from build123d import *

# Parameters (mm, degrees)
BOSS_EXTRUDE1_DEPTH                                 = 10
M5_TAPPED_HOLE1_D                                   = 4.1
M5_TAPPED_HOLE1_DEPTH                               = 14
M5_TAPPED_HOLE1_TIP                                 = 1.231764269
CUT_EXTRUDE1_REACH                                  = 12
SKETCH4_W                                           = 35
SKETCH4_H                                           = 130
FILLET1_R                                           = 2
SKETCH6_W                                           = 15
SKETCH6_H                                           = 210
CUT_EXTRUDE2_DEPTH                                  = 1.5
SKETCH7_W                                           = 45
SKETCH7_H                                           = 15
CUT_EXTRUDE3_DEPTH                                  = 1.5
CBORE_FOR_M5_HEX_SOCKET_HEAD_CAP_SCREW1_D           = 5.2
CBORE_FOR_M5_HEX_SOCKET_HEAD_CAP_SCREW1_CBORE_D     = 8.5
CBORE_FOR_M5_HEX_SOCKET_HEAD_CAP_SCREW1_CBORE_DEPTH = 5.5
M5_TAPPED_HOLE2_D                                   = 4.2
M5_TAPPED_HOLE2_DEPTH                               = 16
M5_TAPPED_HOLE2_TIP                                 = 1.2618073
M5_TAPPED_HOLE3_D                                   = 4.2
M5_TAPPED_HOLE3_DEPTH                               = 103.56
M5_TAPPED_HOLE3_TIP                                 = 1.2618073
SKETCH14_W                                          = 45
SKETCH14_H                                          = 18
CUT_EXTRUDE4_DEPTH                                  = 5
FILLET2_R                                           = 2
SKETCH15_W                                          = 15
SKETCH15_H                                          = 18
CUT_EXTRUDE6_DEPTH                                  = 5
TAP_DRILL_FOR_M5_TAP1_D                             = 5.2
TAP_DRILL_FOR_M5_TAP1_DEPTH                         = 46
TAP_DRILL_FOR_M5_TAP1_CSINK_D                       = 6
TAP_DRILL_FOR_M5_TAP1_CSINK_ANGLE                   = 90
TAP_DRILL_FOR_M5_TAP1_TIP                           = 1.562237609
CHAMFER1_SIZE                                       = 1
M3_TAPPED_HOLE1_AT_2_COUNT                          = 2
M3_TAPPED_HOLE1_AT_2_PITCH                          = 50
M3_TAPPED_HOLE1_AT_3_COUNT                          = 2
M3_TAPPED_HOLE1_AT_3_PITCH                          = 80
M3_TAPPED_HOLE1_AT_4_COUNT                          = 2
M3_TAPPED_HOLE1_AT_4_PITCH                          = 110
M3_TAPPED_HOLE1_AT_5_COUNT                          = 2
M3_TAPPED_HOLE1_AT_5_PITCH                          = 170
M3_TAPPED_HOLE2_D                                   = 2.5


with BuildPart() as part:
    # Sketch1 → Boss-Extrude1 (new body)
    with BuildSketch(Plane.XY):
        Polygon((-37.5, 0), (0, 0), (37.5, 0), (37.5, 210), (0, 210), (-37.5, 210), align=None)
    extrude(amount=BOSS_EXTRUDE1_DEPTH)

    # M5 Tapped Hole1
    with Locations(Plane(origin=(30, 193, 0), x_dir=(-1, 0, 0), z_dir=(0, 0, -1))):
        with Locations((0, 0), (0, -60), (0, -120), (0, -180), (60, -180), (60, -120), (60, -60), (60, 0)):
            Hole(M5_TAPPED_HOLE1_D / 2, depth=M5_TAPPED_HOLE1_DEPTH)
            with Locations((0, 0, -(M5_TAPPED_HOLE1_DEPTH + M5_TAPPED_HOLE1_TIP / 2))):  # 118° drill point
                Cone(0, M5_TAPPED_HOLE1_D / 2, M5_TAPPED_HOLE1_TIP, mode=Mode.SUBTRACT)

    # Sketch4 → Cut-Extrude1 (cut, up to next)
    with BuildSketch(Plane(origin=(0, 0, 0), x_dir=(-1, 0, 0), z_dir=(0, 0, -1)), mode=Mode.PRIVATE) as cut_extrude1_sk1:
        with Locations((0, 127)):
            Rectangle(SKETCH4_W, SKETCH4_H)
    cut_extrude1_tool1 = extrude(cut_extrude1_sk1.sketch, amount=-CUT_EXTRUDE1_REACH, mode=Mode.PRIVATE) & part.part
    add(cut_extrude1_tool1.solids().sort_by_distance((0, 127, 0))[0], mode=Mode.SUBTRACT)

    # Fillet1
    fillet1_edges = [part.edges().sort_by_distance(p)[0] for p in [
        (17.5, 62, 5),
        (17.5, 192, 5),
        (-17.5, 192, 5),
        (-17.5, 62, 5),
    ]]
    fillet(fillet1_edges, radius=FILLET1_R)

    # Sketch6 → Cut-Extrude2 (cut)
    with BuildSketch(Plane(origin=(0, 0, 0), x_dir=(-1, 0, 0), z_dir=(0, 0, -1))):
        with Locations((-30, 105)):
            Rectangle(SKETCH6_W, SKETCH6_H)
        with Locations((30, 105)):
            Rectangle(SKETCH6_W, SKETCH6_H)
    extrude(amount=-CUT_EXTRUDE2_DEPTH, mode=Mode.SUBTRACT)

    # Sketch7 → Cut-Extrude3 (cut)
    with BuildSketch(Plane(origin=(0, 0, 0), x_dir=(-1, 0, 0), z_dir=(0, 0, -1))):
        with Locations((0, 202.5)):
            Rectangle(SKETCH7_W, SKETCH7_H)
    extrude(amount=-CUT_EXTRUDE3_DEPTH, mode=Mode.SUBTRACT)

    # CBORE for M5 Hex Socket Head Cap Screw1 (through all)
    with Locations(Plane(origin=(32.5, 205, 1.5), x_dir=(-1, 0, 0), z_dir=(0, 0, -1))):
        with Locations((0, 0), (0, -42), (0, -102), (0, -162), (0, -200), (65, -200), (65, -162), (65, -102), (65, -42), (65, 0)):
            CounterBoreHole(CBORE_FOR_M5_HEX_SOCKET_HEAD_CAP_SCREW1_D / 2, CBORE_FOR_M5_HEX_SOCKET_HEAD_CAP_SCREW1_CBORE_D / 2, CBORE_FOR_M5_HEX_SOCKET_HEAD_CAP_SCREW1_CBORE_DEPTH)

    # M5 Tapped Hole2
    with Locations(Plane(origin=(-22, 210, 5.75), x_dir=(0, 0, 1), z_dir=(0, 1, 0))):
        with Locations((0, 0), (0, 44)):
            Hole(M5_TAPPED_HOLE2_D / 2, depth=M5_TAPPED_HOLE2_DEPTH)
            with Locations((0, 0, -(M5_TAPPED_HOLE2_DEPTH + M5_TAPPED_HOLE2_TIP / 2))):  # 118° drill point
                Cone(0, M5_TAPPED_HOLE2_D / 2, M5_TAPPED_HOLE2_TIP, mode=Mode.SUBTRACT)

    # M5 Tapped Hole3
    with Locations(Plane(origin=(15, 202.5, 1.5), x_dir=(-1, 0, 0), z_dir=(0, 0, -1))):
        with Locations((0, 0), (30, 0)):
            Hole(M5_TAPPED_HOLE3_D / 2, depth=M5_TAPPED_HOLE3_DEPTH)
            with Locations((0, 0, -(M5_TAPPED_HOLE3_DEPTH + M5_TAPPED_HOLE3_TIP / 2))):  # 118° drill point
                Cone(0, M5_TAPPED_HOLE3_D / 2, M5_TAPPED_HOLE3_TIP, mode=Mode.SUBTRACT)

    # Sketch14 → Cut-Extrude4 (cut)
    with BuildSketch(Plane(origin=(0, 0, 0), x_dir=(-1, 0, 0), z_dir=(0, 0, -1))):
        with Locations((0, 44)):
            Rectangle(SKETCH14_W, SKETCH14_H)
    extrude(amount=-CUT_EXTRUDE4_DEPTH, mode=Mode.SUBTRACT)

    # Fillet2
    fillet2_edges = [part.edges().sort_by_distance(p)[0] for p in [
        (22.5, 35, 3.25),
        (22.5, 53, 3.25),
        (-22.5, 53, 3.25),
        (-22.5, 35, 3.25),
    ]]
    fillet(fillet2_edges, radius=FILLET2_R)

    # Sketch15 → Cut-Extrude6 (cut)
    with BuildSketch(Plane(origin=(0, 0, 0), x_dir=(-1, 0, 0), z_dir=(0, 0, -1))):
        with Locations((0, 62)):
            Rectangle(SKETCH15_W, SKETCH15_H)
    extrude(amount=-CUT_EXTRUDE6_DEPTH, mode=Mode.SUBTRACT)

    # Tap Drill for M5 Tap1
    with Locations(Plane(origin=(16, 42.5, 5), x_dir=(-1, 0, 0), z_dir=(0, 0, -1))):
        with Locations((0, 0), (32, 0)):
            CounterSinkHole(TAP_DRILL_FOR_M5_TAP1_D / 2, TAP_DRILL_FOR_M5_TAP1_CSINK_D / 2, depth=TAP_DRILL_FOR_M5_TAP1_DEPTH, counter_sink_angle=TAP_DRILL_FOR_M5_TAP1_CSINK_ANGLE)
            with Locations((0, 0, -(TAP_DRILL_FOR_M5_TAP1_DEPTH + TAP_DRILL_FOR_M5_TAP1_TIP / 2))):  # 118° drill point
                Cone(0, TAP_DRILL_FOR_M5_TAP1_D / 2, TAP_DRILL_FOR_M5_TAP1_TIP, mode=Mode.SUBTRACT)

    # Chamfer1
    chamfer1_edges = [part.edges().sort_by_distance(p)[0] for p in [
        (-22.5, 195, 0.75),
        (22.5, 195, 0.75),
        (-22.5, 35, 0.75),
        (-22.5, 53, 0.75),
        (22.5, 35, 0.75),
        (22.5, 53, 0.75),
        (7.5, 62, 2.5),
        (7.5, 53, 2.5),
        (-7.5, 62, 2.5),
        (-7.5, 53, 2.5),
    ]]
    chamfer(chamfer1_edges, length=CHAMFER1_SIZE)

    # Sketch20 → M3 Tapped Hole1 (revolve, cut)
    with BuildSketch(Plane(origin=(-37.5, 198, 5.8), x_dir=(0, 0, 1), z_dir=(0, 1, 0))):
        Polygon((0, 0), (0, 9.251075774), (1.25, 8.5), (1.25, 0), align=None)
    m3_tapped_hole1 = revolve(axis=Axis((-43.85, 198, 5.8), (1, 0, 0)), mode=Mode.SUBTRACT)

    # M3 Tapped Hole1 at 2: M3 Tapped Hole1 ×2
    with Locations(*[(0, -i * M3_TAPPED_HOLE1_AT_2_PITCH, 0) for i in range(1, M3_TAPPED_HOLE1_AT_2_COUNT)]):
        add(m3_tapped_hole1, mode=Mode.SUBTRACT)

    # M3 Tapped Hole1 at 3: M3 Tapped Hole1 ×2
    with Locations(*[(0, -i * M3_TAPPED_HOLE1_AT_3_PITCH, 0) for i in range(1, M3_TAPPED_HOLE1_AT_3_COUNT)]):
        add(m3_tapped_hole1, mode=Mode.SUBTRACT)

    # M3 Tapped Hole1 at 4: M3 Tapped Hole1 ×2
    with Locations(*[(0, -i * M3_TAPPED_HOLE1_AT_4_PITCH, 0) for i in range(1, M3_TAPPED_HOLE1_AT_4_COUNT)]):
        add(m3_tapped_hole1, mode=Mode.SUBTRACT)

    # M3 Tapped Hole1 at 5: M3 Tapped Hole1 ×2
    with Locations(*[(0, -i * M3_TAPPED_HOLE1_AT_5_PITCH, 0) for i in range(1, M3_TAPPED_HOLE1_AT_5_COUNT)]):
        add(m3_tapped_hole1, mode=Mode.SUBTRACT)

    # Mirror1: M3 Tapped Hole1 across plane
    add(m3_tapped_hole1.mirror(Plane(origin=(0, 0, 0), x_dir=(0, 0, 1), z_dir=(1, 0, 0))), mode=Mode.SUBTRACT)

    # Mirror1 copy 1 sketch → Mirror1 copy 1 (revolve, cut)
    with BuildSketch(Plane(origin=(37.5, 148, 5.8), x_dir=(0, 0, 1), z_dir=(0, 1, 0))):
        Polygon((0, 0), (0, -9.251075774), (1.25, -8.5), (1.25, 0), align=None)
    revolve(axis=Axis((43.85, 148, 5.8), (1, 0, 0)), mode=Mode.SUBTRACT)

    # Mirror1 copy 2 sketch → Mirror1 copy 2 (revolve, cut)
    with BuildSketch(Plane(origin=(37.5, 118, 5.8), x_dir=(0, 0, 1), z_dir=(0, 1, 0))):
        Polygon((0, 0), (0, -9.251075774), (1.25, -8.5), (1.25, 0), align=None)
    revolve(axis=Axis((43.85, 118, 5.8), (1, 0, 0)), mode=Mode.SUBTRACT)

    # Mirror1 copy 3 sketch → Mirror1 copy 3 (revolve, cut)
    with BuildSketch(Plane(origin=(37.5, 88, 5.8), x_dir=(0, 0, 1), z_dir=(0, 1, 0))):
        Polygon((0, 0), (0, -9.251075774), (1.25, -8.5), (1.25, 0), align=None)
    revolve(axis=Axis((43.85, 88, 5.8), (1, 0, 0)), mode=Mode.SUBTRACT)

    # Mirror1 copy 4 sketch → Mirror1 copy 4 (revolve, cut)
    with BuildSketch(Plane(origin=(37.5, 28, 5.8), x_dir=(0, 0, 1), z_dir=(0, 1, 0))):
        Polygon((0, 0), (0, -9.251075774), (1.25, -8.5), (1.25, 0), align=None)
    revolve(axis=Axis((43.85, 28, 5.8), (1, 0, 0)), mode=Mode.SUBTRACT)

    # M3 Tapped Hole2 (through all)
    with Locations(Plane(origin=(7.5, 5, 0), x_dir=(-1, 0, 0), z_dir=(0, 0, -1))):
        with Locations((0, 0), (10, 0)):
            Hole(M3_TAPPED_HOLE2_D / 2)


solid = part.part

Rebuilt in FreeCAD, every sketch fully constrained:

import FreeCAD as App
import Part
import Sketcher
from FreeCAD import Vector
Q = App.Units.Quantity


def edges_at(feature, points):
    """Names of the edges that pass closest to the given points."""
    edges = feature.Shape.Edges
    near = lambda p: min(range(len(edges)), key=lambda i: edges[i].distToShape(Part.Vertex(*p))[0])
    return sorted({f"Edge{near(p) + 1}" for p in points})

doc = App.newDocument("Part")
body = doc.addObject("PartDesign::Body", "Body")

# Sketch on XY plane
sketch1 = body.newObject("Sketcher::SketchObject", "Sketch")
sketch1.AttachmentSupport = (doc.getObject("XY_Plane"), [""])
sketch1.MapMode = "FlatFace"
sketch1.addGeometry([
    Part.LineSegment(Vector(-37.5, 0, 0), Vector(37.5, 0, 0)),
    Part.LineSegment(Vector(37.5, 0, 0), Vector(37.5, 210, 0)),
    Part.LineSegment(Vector(37.5, 210, 0), Vector(-37.5, 210, 0)),
    Part.LineSegment(Vector(-37.5, 210, 0), Vector(-37.5, 0, 0)),
], False)
sketch1.addConstraint([
    Sketcher.Constraint("Coincident", 0, 2, 1, 1),
    Sketcher.Constraint("Coincident", 1, 2, 2, 1),
    Sketcher.Constraint("Coincident", 2, 2, 3, 1),
    Sketcher.Constraint("Coincident", 3, 2, 0, 1),
    Sketcher.Constraint("Horizontal", 0),
    Sketcher.Constraint("Vertical", 1),
    Sketcher.Constraint("Horizontal", 2),
    Sketcher.Constraint("Vertical", 3),
    Sketcher.Constraint("Symmetric", 0, 2, 3, 2, -1, 1),
    Sketcher.Constraint("DistanceX", 0, 1, 0, 2, 75.0),
    Sketcher.Constraint("DistanceY", 1, 1, 1, 2, 210.0),
])
pad1 = body.newObject("PartDesign::Pad", "Pad")
pad1.Profile = sketch1
pad1.Length = 10

# Sketch on XY plane
sketch2 = body.newObject("Sketcher::SketchObject", "Sketch001")
sketch2.AttachmentSupport = (doc.getObject("XY_Plane"), [""])
sketch2.MapMode = "FlatFace"
sketch2.addGeometry([
    Part.Circle(Vector(30, 193, 0), Vector(0, 0, 1), 2.05),  # 0
    Part.Circle(Vector(30, 133, 0), Vector(0, 0, 1), 2.05),  # 1
    Part.Circle(Vector(30, 73, 0), Vector(0, 0, 1), 2.05),  # 2
    Part.Circle(Vector(30, 13, 0), Vector(0, 0, 1), 2.05),  # 3
    Part.Circle(Vector(-30, 13, 0), Vector(0, 0, 1), 2.05),  # 4
    Part.Circle(Vector(-30, 73, 0), Vector(0, 0, 1), 2.05),  # 5
    Part.Circle(Vector(-30, 133, 0), Vector(0, 0, 1), 2.05),  # 6
    Part.Circle(Vector(-30, 193, 0), Vector(0, 0, 1), 2.05),  # 7
], False)
sketch2.addConstraint([
    Sketcher.Constraint("Equal", 0, 1),
    Sketcher.Constraint("Equal", 1, 2),
    Sketcher.Constraint("Equal", 2, 3),
    Sketcher.Constraint("Equal", 3, 4),
    Sketcher.Constraint("Equal", 4, 5),
    Sketcher.Constraint("Equal", 5, 6),
    Sketcher.Constraint("Equal", 6, 7),
    Sketcher.Constraint("Symmetric", 3, 3, 4, 3, -2),
    Sketcher.Constraint("Symmetric", 2, 3, 5, 3, -2),
    Sketcher.Constraint("Symmetric", 1, 3, 6, 3, -2),
    Sketcher.Constraint("Symmetric", 0, 3, 7, 3, -2),
    Sketcher.Constraint("Vertical", 0, 3, 1, 3),
    Sketcher.Constraint("Vertical", 1, 3, 2, 3),
    Sketcher.Constraint("Vertical", 2, 3, 3, 3),
    Sketcher.Constraint("Diameter", 0, 4.1),
    Sketcher.Constraint("DistanceX", -1, 1, 0, 3, 30.0),
    Sketcher.Constraint("DistanceY", -1, 1, 0, 3, 193.0),
    Sketcher.Constraint("DistanceY", -1, 1, 1, 3, 133.0),
    Sketcher.Constraint("DistanceY", -1, 1, 2, 3, 73.0),
    Sketcher.Constraint("DistanceY", -1, 1, 3, 3, 13.0),
])
doc.recompute()
hole = body.newObject("PartDesign::Hole", "Hole")
hole.Profile = sketch2
hole.ThreadType = "None"
hole.Diameter = 4.1
hole.DepthType = "Dimension"
hole.Depth = 14
hole.DrillPoint = "Angled"
hole.DrillPointAngle = 118
hole.Reversed = True

# Sketch on XY plane
sketch3 = body.newObject("Sketcher::SketchObject", "Sketch002")
sketch3.AttachmentSupport = (doc.getObject("XY_Plane"), [""])
sketch3.MapMode = "FlatFace"
sketch3.addGeometry([
    Part.LineSegment(Vector(17.5, 192, 0), Vector(17.5, 62, 0)),
    Part.LineSegment(Vector(17.5, 62, 0), Vector(-17.5, 62, 0)),
    Part.LineSegment(Vector(-17.5, 62, 0), Vector(-17.5, 192, 0)),
    Part.LineSegment(Vector(-17.5, 192, 0), Vector(17.5, 192, 0)),
], False)
sketch3.addConstraint([
    Sketcher.Constraint("Coincident", 0, 2, 1, 1),
    Sketcher.Constraint("Coincident", 1, 2, 2, 1),
    Sketcher.Constraint("Coincident", 2, 2, 3, 1),
    Sketcher.Constraint("Coincident", 3, 2, 0, 1),
    Sketcher.Constraint("Vertical", 0),
    Sketcher.Constraint("Horizontal", 1),
    Sketcher.Constraint("Vertical", 2),
    Sketcher.Constraint("Horizontal", 3),
    Sketcher.Constraint("DistanceX", 1, 2, 1, 1, 35.0),
    Sketcher.Constraint("DistanceY", 0, 2, 0, 1, 130.0),
    Sketcher.Constraint("DistanceY", -1, 1, 0, 2, 62.0),
    Sketcher.Constraint("DistanceX", -1, 1, 0, 2, 17.5),
])
pocket1 = body.newObject("PartDesign::Pocket", "Pocket")
pocket1.Profile = sketch3
pocket1.Type = "UpToFirst"
pocket1.Reversed = True
doc.recompute()

fillet = body.newObject("PartDesign::Fillet", "Fillet")
fillet.Base = (pocket1, edges_at(pocket1, [
    (17.5, 62, 5),
    (17.5, 192, 5),
    (-17.5, 192, 5),
    (-17.5, 62, 5),
]))
fillet.Radius = 2

# Sketch on XY plane
sketch4 = body.newObject("Sketcher::SketchObject", "Sketch003")
sketch4.AttachmentSupport = (doc.getObject("XY_Plane"), [""])
sketch4.MapMode = "FlatFace"
sketch4.addGeometry([
    Part.LineSegment(Vector(37.5, 210, 0), Vector(37.5, 0, 0)),  # 0
    Part.LineSegment(Vector(37.5, 0, 0), Vector(22.5, 0, 0)),  # 1
    Part.LineSegment(Vector(22.5, 0, 0), Vector(22.5, 210, 0)),  # 2
    Part.LineSegment(Vector(22.5, 210, 0), Vector(37.5, 210, 0)),  # 3
    Part.LineSegment(Vector(-22.5, 210, 0), Vector(-22.5, 0, 0)),  # 4
    Part.LineSegment(Vector(-22.5, 0, 0), Vector(-37.5, 0, 0)),  # 5
    Part.LineSegment(Vector(-37.5, 0, 0), Vector(-37.5, 210, 0)),  # 6
    Part.LineSegment(Vector(-37.5, 210, 0), Vector(-22.5, 210, 0)),  # 7
], False)
sketch4.addConstraint([
    Sketcher.Constraint("Coincident", 0, 2, 1, 1),
    Sketcher.Constraint("Coincident", 1, 2, 2, 1),
    Sketcher.Constraint("Coincident", 2, 2, 3, 1),
    Sketcher.Constraint("Coincident", 3, 2, 0, 1),
    Sketcher.Constraint("Coincident", 4, 2, 5, 1),
    Sketcher.Constraint("Coincident", 5, 2, 6, 1),
    Sketcher.Constraint("Coincident", 6, 2, 7, 1),
    Sketcher.Constraint("Coincident", 7, 2, 4, 1),
    Sketcher.Constraint("Vertical", 0),
    Sketcher.Constraint("Horizontal", 1),
    Sketcher.Constraint("Vertical", 2),
    Sketcher.Constraint("Horizontal", 3),
    Sketcher.Constraint("Vertical", 4),
    Sketcher.Constraint("Horizontal", 5),
    Sketcher.Constraint("Vertical", 6),
    Sketcher.Constraint("Horizontal", 7),
    Sketcher.Constraint("Symmetric", 1, 2, 4, 2, -1, 1),
    Sketcher.Constraint("Symmetric", 0, 2, 5, 2, -2),
    Sketcher.Constraint("Horizontal", 3, 2, 6, 2),
    Sketcher.Constraint("DistanceX", 1, 2, 1, 1, 15.0),
    Sketcher.Constraint("DistanceY", 0, 2, 0, 1, 210.0),
    Sketcher.Constraint("DistanceX", 4, 2, 1, 2, 45.0),
])
pocket2 = body.newObject("PartDesign::Pocket", "Pocket001")
pocket2.Profile = sketch4
pocket2.Length = 1.5
pocket2.Reversed = True

# Sketch on XY plane
sketch5 = body.newObject("Sketcher::SketchObject", "Sketch004")
sketch5.AttachmentSupport = (doc.getObject("XY_Plane"), [""])
sketch5.MapMode = "FlatFace"
sketch5.addGeometry([
    Part.LineSegment(Vector(22.5, 210, 0), Vector(22.5, 195, 0)),
    Part.LineSegment(Vector(22.5, 195, 0), Vector(-22.5, 195, 0)),
    Part.LineSegment(Vector(-22.5, 195, 0), Vector(-22.5, 210, 0)),
    Part.LineSegment(Vector(-22.5, 210, 0), Vector(22.5, 210, 0)),
], False)
sketch5.addConstraint([
    Sketcher.Constraint("Coincident", 0, 2, 1, 1),
    Sketcher.Constraint("Coincident", 1, 2, 2, 1),
    Sketcher.Constraint("Coincident", 2, 2, 3, 1),
    Sketcher.Constraint("Coincident", 3, 2, 0, 1),
    Sketcher.Constraint("Vertical", 0),
    Sketcher.Constraint("Horizontal", 1),
    Sketcher.Constraint("Vertical", 2),
    Sketcher.Constraint("Horizontal", 3),
    Sketcher.Constraint("DistanceX", 1, 2, 1, 1, 45.0),
    Sketcher.Constraint("DistanceY", 0, 2, 0, 1, 15.0),
    Sketcher.Constraint("DistanceY", -1, 1, 0, 2, 195.0),
    Sketcher.Constraint("DistanceX", -1, 1, 0, 2, 22.5),
])
pocket3 = body.newObject("PartDesign::Pocket", "Pocket002")
pocket3.Profile = sketch5
pocket3.Length = 1.5
pocket3.Reversed = True

# Sketch on XY plane
sketch6 = body.newObject("Sketcher::SketchObject", "Sketch005")
sketch6.AttachmentSupport = (doc.getObject("XY_Plane"), [""])
sketch6.MapMode = "FlatFace"
sketch6.AttachmentOffset = App.Placement(Vector(0, 0, 1.5), App.Rotation())
sketch6.addGeometry([
    Part.Circle(Vector(32.5, 205, 0), Vector(0, 0, 1), 2.6),  # 0
    Part.Circle(Vector(32.5, 163, 0), Vector(0, 0, 1), 2.6),  # 1
    Part.Circle(Vector(32.5, 103, 0), Vector(0, 0, 1), 2.6),  # 2
    Part.Circle(Vector(32.5, 43, 0), Vector(0, 0, 1), 2.6),  # 3
    Part.Circle(Vector(32.5, 5, 0), Vector(0, 0, 1), 2.6),  # 4
    Part.Circle(Vector(-32.5, 5, 0), Vector(0, 0, 1), 2.6),  # 5
    Part.Circle(Vector(-32.5, 43, 0), Vector(0, 0, 1), 2.6),  # 6
    Part.Circle(Vector(-32.5, 103, 0), Vector(0, 0, 1), 2.6),  # 7
    Part.Circle(Vector(-32.5, 163, 0), Vector(0, 0, 1), 2.6),  # 8
    Part.Circle(Vector(-32.5, 205, 0), Vector(0, 0, 1), 2.6),  # 9
], False)
sketch6.addConstraint([
    Sketcher.Constraint("Equal", 0, 1),
    Sketcher.Constraint("Equal", 1, 2),
    Sketcher.Constraint("Equal", 2, 3),
    Sketcher.Constraint("Equal", 3, 4),
    Sketcher.Constraint("Equal", 4, 5),
    Sketcher.Constraint("Equal", 5, 6),
    Sketcher.Constraint("Equal", 6, 7),
    Sketcher.Constraint("Equal", 7, 8),
    Sketcher.Constraint("Equal", 8, 9),
    Sketcher.Constraint("Symmetric", 4, 3, 5, 3, -2),
    Sketcher.Constraint("Symmetric", 3, 3, 6, 3, -2),
    Sketcher.Constraint("Symmetric", 2, 3, 7, 3, -2),
    Sketcher.Constraint("Symmetric", 1, 3, 8, 3, -2),
    Sketcher.Constraint("Symmetric", 0, 3, 9, 3, -2),
    Sketcher.Constraint("Vertical", 0, 3, 1, 3),
    Sketcher.Constraint("Vertical", 1, 3, 2, 3),
    Sketcher.Constraint("Vertical", 2, 3, 3, 3),
    Sketcher.Constraint("Vertical", 3, 3, 4, 3),
    Sketcher.Constraint("Diameter", 0, 5.2),
    Sketcher.Constraint("DistanceY", -1, 1, 0, 3, 205.0),
    Sketcher.Constraint("DistanceY", -1, 1, 1, 3, 163.0),
    Sketcher.Constraint("DistanceY", -1, 1, 2, 3, 103.0),
    Sketcher.Constraint("DistanceY", -1, 1, 3, 3, 43.0),
    Sketcher.Constraint("DistanceY", -1, 1, 4, 3, 5.0),
    Sketcher.Constraint("DistanceX", 5, 3, 4, 3, 65.0),
])
doc.recompute()
hole2 = body.newObject("PartDesign::Hole", "Hole001")
hole2.Profile = sketch6
hole2.ThreadType = "None"
hole2.Diameter = 5.2
hole2.DepthType = "ThroughAll"
hole2.HoleCutType = "Counterbore"
hole2.HoleCutDiameter = 8.5
hole2.HoleCutDepth = 5.5
hole2.Reversed = True

# Sketch on XZ plane
sketch7 = body.newObject("Sketcher::SketchObject", "Sketch006")
sketch7.AttachmentSupport = (doc.getObject("XZ_Plane"), [""])
sketch7.MapMode = "FlatFace"
sketch7.AttachmentOffset = App.Placement(Vector(0, 0, -210), App.Rotation())
sketch7.addGeometry([
    Part.Circle(Vector(-22, 5.75, 0), Vector(0, 0, 1), 2.1),
    Part.Circle(Vector(22, 5.75, 0), Vector(0, 0, 1), 2.1),
], False)
sketch7.addConstraint([
    Sketcher.Constraint("Equal", 0, 1),
    Sketcher.Constraint("Symmetric", 0, 3, 1, 3, -2),
    Sketcher.Constraint("Diameter", 0, 4.2),
    Sketcher.Constraint("DistanceX", 0, 3, -1, 1, 22.0),
    Sketcher.Constraint("DistanceY", -1, 1, 0, 3, 5.75),
])
doc.recompute()
hole3 = body.newObject("PartDesign::Hole", "Hole002")
hole3.Profile = sketch7
hole3.ThreadType = "None"
hole3.Diameter = 4.2
hole3.DepthType = "Dimension"
hole3.Depth = 16
hole3.DrillPoint = "Angled"
hole3.DrillPointAngle = 118
hole3.Reversed = True

# Sketch on XY plane
sketch8 = body.newObject("Sketcher::SketchObject", "Sketch007")
sketch8.AttachmentSupport = (doc.getObject("XY_Plane"), [""])
sketch8.MapMode = "FlatFace"
sketch8.AttachmentOffset = App.Placement(Vector(0, 0, 1.5), App.Rotation())
sketch8.addGeometry([
    Part.Circle(Vector(15, 202.5, 0), Vector(0, 0, 1), 2.1),
    Part.Circle(Vector(-15, 202.5, 0), Vector(0, 0, 1), 2.1),
], False)
sketch8.addConstraint([
    Sketcher.Constraint("Equal", 0, 1),
    Sketcher.Constraint("Symmetric", 0, 3, 1, 3, -2),
    Sketcher.Constraint("Diameter", 0, 4.2),
    Sketcher.Constraint("DistanceX", -1, 1, 0, 3, 15.0),
    Sketcher.Constraint("DistanceY", -1, 1, 0, 3, 202.5),
])
doc.recompute()
hole4 = body.newObject("PartDesign::Hole", "Hole003")
hole4.Profile = sketch8
hole4.ThreadType = "None"
hole4.Diameter = 4.2
hole4.DepthType = "Dimension"
hole4.Depth = 103.56
hole4.DrillPoint = "Angled"
hole4.DrillPointAngle = 118
hole4.Reversed = True

# Sketch on XY plane
sketch9 = body.newObject("Sketcher::SketchObject", "Sketch008")
sketch9.AttachmentSupport = (doc.getObject("XY_Plane"), [""])
sketch9.MapMode = "FlatFace"
sketch9.addGeometry([
    Part.LineSegment(Vector(22.5, 53, 0), Vector(22.5, 35, 0)),
    Part.LineSegment(Vector(22.5, 35, 0), Vector(-22.5, 35, 0)),
    Part.LineSegment(Vector(-22.5, 35, 0), Vector(-22.5, 53, 0)),
    Part.LineSegment(Vector(-22.5, 53, 0), Vector(22.5, 53, 0)),
], False)
sketch9.addConstraint([
    Sketcher.Constraint("Coincident", 0, 2, 1, 1),
    Sketcher.Constraint("Coincident", 1, 2, 2, 1),
    Sketcher.Constraint("Coincident", 2, 2, 3, 1),
    Sketcher.Constraint("Coincident", 3, 2, 0, 1),
    Sketcher.Constraint("Vertical", 0),
    Sketcher.Constraint("Horizontal", 1),
    Sketcher.Constraint("Vertical", 2),
    Sketcher.Constraint("Horizontal", 3),
    Sketcher.Constraint("DistanceX", 1, 2, 1, 1, 45.0),
    Sketcher.Constraint("DistanceY", 0, 2, 0, 1, 18.0),
    Sketcher.Constraint("DistanceY", -1, 1, 0, 2, 35.0),
    Sketcher.Constraint("DistanceX", -1, 1, 0, 2, 22.5),
])
pocket4 = body.newObject("PartDesign::Pocket", "Pocket003")
pocket4.Profile = sketch9
pocket4.Length = 5
pocket4.Reversed = True
doc.recompute()

fillet2 = body.newObject("PartDesign::Fillet", "Fillet001")
fillet2.Base = (pocket4, edges_at(pocket4, [
    (22.5, 35, 3.25),
    (22.5, 53, 3.25),
    (-22.5, 53, 3.25),
    (-22.5, 35, 3.25),
]))
fillet2.Radius = 2

# Sketch on XY plane
sketch10 = body.newObject("Sketcher::SketchObject", "Sketch009")
sketch10.AttachmentSupport = (doc.getObject("XY_Plane"), [""])
sketch10.MapMode = "FlatFace"
sketch10.addGeometry([
    Part.LineSegment(Vector(7.5, 71, 0), Vector(7.5, 53, 0)),
    Part.LineSegment(Vector(7.5, 53, 0), Vector(-7.5, 53, 0)),
    Part.LineSegment(Vector(-7.5, 53, 0), Vector(-7.5, 71, 0)),
    Part.LineSegment(Vector(-7.5, 71, 0), Vector(7.5, 71, 0)),
], False)
sketch10.addConstraint([
    Sketcher.Constraint("Coincident", 0, 2, 1, 1),
    Sketcher.Constraint("Coincident", 1, 2, 2, 1),
    Sketcher.Constraint("Coincident", 2, 2, 3, 1),
    Sketcher.Constraint("Coincident", 3, 2, 0, 1),
    Sketcher.Constraint("Vertical", 0),
    Sketcher.Constraint("Horizontal", 1),
    Sketcher.Constraint("Vertical", 2),
    Sketcher.Constraint("Horizontal", 3),
    Sketcher.Constraint("DistanceX", 1, 2, 1, 1, 15.0),
    Sketcher.Constraint("DistanceY", 0, 2, 0, 1, 18.0),
    Sketcher.Constraint("DistanceY", -1, 1, 0, 2, 53.0),
    Sketcher.Constraint("DistanceX", -1, 1, 0, 2, 7.5),
])
pocket5 = body.newObject("PartDesign::Pocket", "Pocket004")
pocket5.Profile = sketch10
pocket5.Length = 5
pocket5.Reversed = True

# Sketch on XY plane
sketch11 = body.newObject("Sketcher::SketchObject", "Sketch010")
sketch11.AttachmentSupport = (doc.getObject("XY_Plane"), [""])
sketch11.MapMode = "FlatFace"
sketch11.AttachmentOffset = App.Placement(Vector(0, 0, 5), App.Rotation())
sketch11.addGeometry([
    Part.Circle(Vector(16, 42.5, 0), Vector(0, 0, 1), 2.6),
    Part.Circle(Vector(-16, 42.5, 0), Vector(0, 0, 1), 2.6),
], False)
sketch11.addConstraint([
    Sketcher.Constraint("Equal", 0, 1),
    Sketcher.Constraint("Symmetric", 0, 3, 1, 3, -2),
    Sketcher.Constraint("Diameter", 0, 5.2),
    Sketcher.Constraint("DistanceX", -1, 1, 0, 3, 16.0),
    Sketcher.Constraint("DistanceY", -1, 1, 0, 3, 42.5),
])
doc.recompute()
hole5 = body.newObject("PartDesign::Hole", "Hole004")
hole5.Profile = sketch11
hole5.ThreadType = "None"
hole5.Diameter = 5.2
hole5.DepthType = "Dimension"
hole5.Depth = 46
hole5.DrillPoint = "Angled"
hole5.DrillPointAngle = 118
hole5.HoleCutType = "Countersink"
hole5.HoleCutDiameter = 6
hole5.HoleCutCountersinkAngle = 90
hole5.Reversed = True
doc.recompute()

chamfer = body.newObject("PartDesign::Chamfer", "Chamfer")
chamfer.Base = (hole5, edges_at(hole5, [
    (-22.5, 195, 0.75),
    (22.5, 195, 0.75),
    (-22.5, 35, 0.75),
    (-22.5, 53, 0.75),
    (22.5, 35, 0.75),
    (22.5, 53, 0.75),
    (7.5, 62, 2.5),
    (7.5, 53, 2.5),
    (-7.5, 62, 2.5),
    (-7.5, 53, 2.5),
]))
chamfer.Size = 1

# Sketch on XZ plane
sketch12 = body.newObject("Sketcher::SketchObject", "Sketch011")
sketch12.AttachmentSupport = (doc.getObject("XZ_Plane"), [""])
sketch12.MapMode = "FlatFace"
sketch12.AttachmentOffset = App.Placement(Vector(0, 0, -198), App.Rotation())
sketch12.addGeometry([
    Part.LineSegment(Vector(-28.248924, 5.8, 0), Vector(-37.5, 5.8, 0)),
    Part.LineSegment(Vector(-37.5, 5.8, 0), Vector(-37.5, 7.05, 0)),
    Part.LineSegment(Vector(-37.5, 7.05, 0), Vector(-29, 7.05, 0)),
    Part.LineSegment(Vector(-29, 7.05, 0), Vector(-28.248924, 5.8, 0)),
], False)
sketch12.addGeometry(Part.LineSegment(Vector(-37.5, 5.8, 0), Vector(-28.248924, 5.8, 0)), True)  # axis
sketch12.addConstraint([
    Sketcher.Constraint("Coincident", 0, 2, 1, 1),
    Sketcher.Constraint("Coincident", 1, 2, 2, 1),
    Sketcher.Constraint("Coincident", 2, 2, 3, 1),
    Sketcher.Constraint("Coincident", 3, 2, 0, 1),
    Sketcher.Constraint("Horizontal", 0),
    Sketcher.Constraint("Vertical", 1),
    Sketcher.Constraint("Horizontal", 2),
    Sketcher.Constraint("Horizontal", 4),
    Sketcher.Constraint("Coincident", 4, 1, 0, 2),
    Sketcher.Constraint("Equal", 0, 4),
    Sketcher.Constraint("Angle", 3, Q("-59 deg")),
    Sketcher.Constraint("DistanceX", 2, 1, 2, 2, 8.5),
    Sketcher.Constraint("DistanceX", 2, 2, -1, 1, 29.0),
    Sketcher.Constraint("DistanceY", 1, 1, 1, 2, 1.25),
    Sketcher.Constraint("DistanceY", -1, 1, 0, 2, 5.8),
])
groove = body.newObject("PartDesign::Groove", "Groove")
groove.Profile = sketch12
groove.ReferenceAxis = (sketch12, ["Axis0"])
groove.Angle = 360
doc.recompute()

linearpattern = body.newObject("PartDesign::LinearPattern", "LinearPattern")
linearpattern.Originals = [groove]
linearpattern.Direction = (doc.getObject("Y_Axis"), [""])
linearpattern.Mode = "offset"
linearpattern.Offset = 50
linearpattern.Occurrences = 2
linearpattern.Reversed = True
body.Tip = linearpattern
doc.recompute()

linearpattern2 = body.newObject("PartDesign::LinearPattern", "LinearPattern001")
linearpattern2.Originals = [groove]
linearpattern2.Direction = (doc.getObject("Y_Axis"), [""])
linearpattern2.Mode = "offset"
linearpattern2.Offset = 80
linearpattern2.Occurrences = 2
linearpattern2.Reversed = True
body.Tip = linearpattern2
doc.recompute()

linearpattern3 = body.newObject("PartDesign::LinearPattern", "LinearPattern002")
linearpattern3.Originals = [groove]
linearpattern3.Direction = (doc.getObject("Y_Axis"), [""])
linearpattern3.Mode = "offset"
linearpattern3.Offset = 110
linearpattern3.Occurrences = 2
linearpattern3.Reversed = True
body.Tip = linearpattern3
doc.recompute()

linearpattern4 = body.newObject("PartDesign::LinearPattern", "LinearPattern003")
linearpattern4.Originals = [groove]
linearpattern4.Direction = (doc.getObject("Y_Axis"), [""])
linearpattern4.Mode = "offset"
linearpattern4.Offset = 170
linearpattern4.Occurrences = 2
linearpattern4.Reversed = True
body.Tip = linearpattern4
doc.recompute()

mirrored = body.newObject("PartDesign::Mirrored", "Mirrored")
mirrored.Originals = [groove]
mirrored.MirrorPlane = (doc.getObject("YZ_Plane"), [""])
body.Tip = mirrored

# Sketch on XZ plane
sketch13 = body.newObject("Sketcher::SketchObject", "Sketch012")
sketch13.AttachmentSupport = (doc.getObject("XZ_Plane"), [""])
sketch13.MapMode = "FlatFace"
sketch13.AttachmentOffset = App.Placement(Vector(0, 0, -148), App.Rotation())
sketch13.addGeometry([
    Part.LineSegment(Vector(37.5, 5.8, 0), Vector(28.248924, 5.8, 0)),
    Part.LineSegment(Vector(28.248924, 5.8, 0), Vector(29, 7.05, 0)),
    Part.LineSegment(Vector(29, 7.05, 0), Vector(37.5, 7.05, 0)),
    Part.LineSegment(Vector(37.5, 7.05, 0), Vector(37.5, 5.8, 0)),
], False)
sketch13.addGeometry(Part.LineSegment(Vector(28.248924, 5.8, 0), Vector(37.5, 5.8, 0)), True)  # axis
sketch13.addConstraint([
    Sketcher.Constraint("Coincident", 0, 2, 1, 1),
    Sketcher.Constraint("Coincident", 1, 2, 2, 1),
    Sketcher.Constraint("Coincident", 2, 2, 3, 1),
    Sketcher.Constraint("Coincident", 3, 2, 0, 1),
    Sketcher.Constraint("Horizontal", 0),
    Sketcher.Constraint("Horizontal", 2),
    Sketcher.Constraint("Vertical", 3),
    Sketcher.Constraint("Horizontal", 4),
    Sketcher.Constraint("Coincident", 4, 1, 0, 2),
    Sketcher.Constraint("Vertical", 2, 2, 4, 2),
    Sketcher.Constraint("Angle", 1, Q("59 deg")),
    Sketcher.Constraint("DistanceX", 2, 1, 2, 2, 8.5),
    Sketcher.Constraint("DistanceX", -1, 1, 1, 2, 29.0),
    Sketcher.Constraint("DistanceY", 3, 2, 3, 1, 1.25),
    Sketcher.Constraint("DistanceY", -1, 1, 0, 2, 5.8),
])
groove2 = body.newObject("PartDesign::Groove", "Groove001")
groove2.Profile = sketch13
groove2.ReferenceAxis = (sketch13, ["Axis0"])
groove2.Angle = 360

# Sketch on XZ plane
sketch14 = body.newObject("Sketcher::SketchObject", "Sketch013")
sketch14.AttachmentSupport = (doc.getObject("XZ_Plane"), [""])
sketch14.MapMode = "FlatFace"
sketch14.AttachmentOffset = App.Placement(Vector(0, 0, -118), App.Rotation())
sketch14.addGeometry([
    Part.LineSegment(Vector(37.5, 5.8, 0), Vector(28.248924, 5.8, 0)),
    Part.LineSegment(Vector(28.248924, 5.8, 0), Vector(29, 7.05, 0)),
    Part.LineSegment(Vector(29, 7.05, 0), Vector(37.5, 7.05, 0)),
    Part.LineSegment(Vector(37.5, 7.05, 0), Vector(37.5, 5.8, 0)),
], False)
sketch14.addGeometry(Part.LineSegment(Vector(28.248924, 5.8, 0), Vector(37.5, 5.8, 0)), True)  # axis
sketch14.addConstraint([
    Sketcher.Constraint("Coincident", 0, 2, 1, 1),
    Sketcher.Constraint("Coincident", 1, 2, 2, 1),
    Sketcher.Constraint("Coincident", 2, 2, 3, 1),
    Sketcher.Constraint("Coincident", 3, 2, 0, 1),
    Sketcher.Constraint("Horizontal", 0),
    Sketcher.Constraint("Horizontal", 2),
    Sketcher.Constraint("Vertical", 3),
    Sketcher.Constraint("Horizontal", 4),
    Sketcher.Constraint("Coincident", 4, 1, 0, 2),
    Sketcher.Constraint("Vertical", 2, 2, 4, 2),
    Sketcher.Constraint("Angle", 1, Q("59 deg")),
    Sketcher.Constraint("DistanceX", 2, 1, 2, 2, 8.5),
    Sketcher.Constraint("DistanceX", -1, 1, 1, 2, 29.0),
    Sketcher.Constraint("DistanceY", 3, 2, 3, 1, 1.25),
    Sketcher.Constraint("DistanceY", -1, 1, 0, 2, 5.8),
])
groove3 = body.newObject("PartDesign::Groove", "Groove002")
groove3.Profile = sketch14
groove3.ReferenceAxis = (sketch14, ["Axis0"])
groove3.Angle = 360

# Sketch on XZ plane
sketch15 = body.newObject("Sketcher::SketchObject", "Sketch014")
sketch15.AttachmentSupport = (doc.getObject("XZ_Plane"), [""])
sketch15.MapMode = "FlatFace"
sketch15.AttachmentOffset = App.Placement(Vector(0, 0, -88), App.Rotation())
sketch15.addGeometry([
    Part.LineSegment(Vector(37.5, 5.8, 0), Vector(28.248924, 5.8, 0)),
    Part.LineSegment(Vector(28.248924, 5.8, 0), Vector(29, 7.05, 0)),
    Part.LineSegment(Vector(29, 7.05, 0), Vector(37.5, 7.05, 0)),
    Part.LineSegment(Vector(37.5, 7.05, 0), Vector(37.5, 5.8, 0)),
], False)
sketch15.addGeometry(Part.LineSegment(Vector(28.248924, 5.8, 0), Vector(37.5, 5.8, 0)), True)  # axis
sketch15.addConstraint([
    Sketcher.Constraint("Coincident", 0, 2, 1, 1),
    Sketcher.Constraint("Coincident", 1, 2, 2, 1),
    Sketcher.Constraint("Coincident", 2, 2, 3, 1),
    Sketcher.Constraint("Coincident", 3, 2, 0, 1),
    Sketcher.Constraint("Horizontal", 0),
    Sketcher.Constraint("Horizontal", 2),
    Sketcher.Constraint("Vertical", 3),
    Sketcher.Constraint("Horizontal", 4),
    Sketcher.Constraint("Coincident", 4, 1, 0, 2),
    Sketcher.Constraint("Vertical", 2, 2, 4, 2),
    Sketcher.Constraint("Angle", 1, Q("59 deg")),
    Sketcher.Constraint("DistanceX", 2, 1, 2, 2, 8.5),
    Sketcher.Constraint("DistanceX", -1, 1, 1, 2, 29.0),
    Sketcher.Constraint("DistanceY", 3, 2, 3, 1, 1.25),
    Sketcher.Constraint("DistanceY", -1, 1, 0, 2, 5.8),
])
groove4 = body.newObject("PartDesign::Groove", "Groove003")
groove4.Profile = sketch15
groove4.ReferenceAxis = (sketch15, ["Axis0"])
groove4.Angle = 360

# Sketch on XZ plane
sketch16 = body.newObject("Sketcher::SketchObject", "Sketch015")
sketch16.AttachmentSupport = (doc.getObject("XZ_Plane"), [""])
sketch16.MapMode = "FlatFace"
sketch16.AttachmentOffset = App.Placement(Vector(0, 0, -28), App.Rotation())
sketch16.addGeometry([
    Part.LineSegment(Vector(37.5, 5.8, 0), Vector(28.248924, 5.8, 0)),
    Part.LineSegment(Vector(28.248924, 5.8, 0), Vector(29, 7.05, 0)),
    Part.LineSegment(Vector(29, 7.05, 0), Vector(37.5, 7.05, 0)),
    Part.LineSegment(Vector(37.5, 7.05, 0), Vector(37.5, 5.8, 0)),
], False)
sketch16.addGeometry(Part.LineSegment(Vector(28.248924, 5.8, 0), Vector(37.5, 5.8, 0)), True)  # axis
sketch16.addConstraint([
    Sketcher.Constraint("Coincident", 0, 2, 1, 1),
    Sketcher.Constraint("Coincident", 1, 2, 2, 1),
    Sketcher.Constraint("Coincident", 2, 2, 3, 1),
    Sketcher.Constraint("Coincident", 3, 2, 0, 1),
    Sketcher.Constraint("Horizontal", 0),
    Sketcher.Constraint("Horizontal", 2),
    Sketcher.Constraint("Vertical", 3),
    Sketcher.Constraint("Horizontal", 4),
    Sketcher.Constraint("Coincident", 4, 1, 0, 2),
    Sketcher.Constraint("Vertical", 2, 2, 4, 2),
    Sketcher.Constraint("Angle", 1, Q("59 deg")),
    Sketcher.Constraint("DistanceX", 2, 1, 2, 2, 8.5),
    Sketcher.Constraint("DistanceX", -1, 1, 1, 2, 29.0),
    Sketcher.Constraint("DistanceY", 3, 2, 3, 1, 1.25),
    Sketcher.Constraint("DistanceY", -1, 1, 0, 2, 5.8),
])
groove5 = body.newObject("PartDesign::Groove", "Groove004")
groove5.Profile = sketch16
groove5.ReferenceAxis = (sketch16, ["Axis0"])
groove5.Angle = 360

# Sketch on XY plane
sketch17 = body.newObject("Sketcher::SketchObject", "Sketch016")
sketch17.AttachmentSupport = (doc.getObject("XY_Plane"), [""])
sketch17.MapMode = "FlatFace"
sketch17.addGeometry([
    Part.Circle(Vector(7.5, 5, 0), Vector(0, 0, 1), 1.25),
    Part.Circle(Vector(-2.5, 5, 0), Vector(0, 0, 1), 1.25),
], False)
sketch17.addConstraint([
    Sketcher.Constraint("Equal", 0, 1),
    Sketcher.Constraint("Horizontal", 0, 3, 1, 3),
    Sketcher.Constraint("Diameter", 0, 2.5),
    Sketcher.Constraint("DistanceY", -1, 1, 0, 3, 5.0),
    Sketcher.Constraint("DistanceX", 1, 3, 0, 3, 10.0),
    Sketcher.Constraint("DistanceX", -1, 1, 0, 3, 7.5),
])
doc.recompute()
hole6 = body.newObject("PartDesign::Hole", "Hole005")
hole6.Profile = sketch17
hole6.ThreadType = "None"
hole6.Diameter = 2.5
hole6.DepthType = "ThroughAll"
hole6.Reversed = True

doc.recompute()
